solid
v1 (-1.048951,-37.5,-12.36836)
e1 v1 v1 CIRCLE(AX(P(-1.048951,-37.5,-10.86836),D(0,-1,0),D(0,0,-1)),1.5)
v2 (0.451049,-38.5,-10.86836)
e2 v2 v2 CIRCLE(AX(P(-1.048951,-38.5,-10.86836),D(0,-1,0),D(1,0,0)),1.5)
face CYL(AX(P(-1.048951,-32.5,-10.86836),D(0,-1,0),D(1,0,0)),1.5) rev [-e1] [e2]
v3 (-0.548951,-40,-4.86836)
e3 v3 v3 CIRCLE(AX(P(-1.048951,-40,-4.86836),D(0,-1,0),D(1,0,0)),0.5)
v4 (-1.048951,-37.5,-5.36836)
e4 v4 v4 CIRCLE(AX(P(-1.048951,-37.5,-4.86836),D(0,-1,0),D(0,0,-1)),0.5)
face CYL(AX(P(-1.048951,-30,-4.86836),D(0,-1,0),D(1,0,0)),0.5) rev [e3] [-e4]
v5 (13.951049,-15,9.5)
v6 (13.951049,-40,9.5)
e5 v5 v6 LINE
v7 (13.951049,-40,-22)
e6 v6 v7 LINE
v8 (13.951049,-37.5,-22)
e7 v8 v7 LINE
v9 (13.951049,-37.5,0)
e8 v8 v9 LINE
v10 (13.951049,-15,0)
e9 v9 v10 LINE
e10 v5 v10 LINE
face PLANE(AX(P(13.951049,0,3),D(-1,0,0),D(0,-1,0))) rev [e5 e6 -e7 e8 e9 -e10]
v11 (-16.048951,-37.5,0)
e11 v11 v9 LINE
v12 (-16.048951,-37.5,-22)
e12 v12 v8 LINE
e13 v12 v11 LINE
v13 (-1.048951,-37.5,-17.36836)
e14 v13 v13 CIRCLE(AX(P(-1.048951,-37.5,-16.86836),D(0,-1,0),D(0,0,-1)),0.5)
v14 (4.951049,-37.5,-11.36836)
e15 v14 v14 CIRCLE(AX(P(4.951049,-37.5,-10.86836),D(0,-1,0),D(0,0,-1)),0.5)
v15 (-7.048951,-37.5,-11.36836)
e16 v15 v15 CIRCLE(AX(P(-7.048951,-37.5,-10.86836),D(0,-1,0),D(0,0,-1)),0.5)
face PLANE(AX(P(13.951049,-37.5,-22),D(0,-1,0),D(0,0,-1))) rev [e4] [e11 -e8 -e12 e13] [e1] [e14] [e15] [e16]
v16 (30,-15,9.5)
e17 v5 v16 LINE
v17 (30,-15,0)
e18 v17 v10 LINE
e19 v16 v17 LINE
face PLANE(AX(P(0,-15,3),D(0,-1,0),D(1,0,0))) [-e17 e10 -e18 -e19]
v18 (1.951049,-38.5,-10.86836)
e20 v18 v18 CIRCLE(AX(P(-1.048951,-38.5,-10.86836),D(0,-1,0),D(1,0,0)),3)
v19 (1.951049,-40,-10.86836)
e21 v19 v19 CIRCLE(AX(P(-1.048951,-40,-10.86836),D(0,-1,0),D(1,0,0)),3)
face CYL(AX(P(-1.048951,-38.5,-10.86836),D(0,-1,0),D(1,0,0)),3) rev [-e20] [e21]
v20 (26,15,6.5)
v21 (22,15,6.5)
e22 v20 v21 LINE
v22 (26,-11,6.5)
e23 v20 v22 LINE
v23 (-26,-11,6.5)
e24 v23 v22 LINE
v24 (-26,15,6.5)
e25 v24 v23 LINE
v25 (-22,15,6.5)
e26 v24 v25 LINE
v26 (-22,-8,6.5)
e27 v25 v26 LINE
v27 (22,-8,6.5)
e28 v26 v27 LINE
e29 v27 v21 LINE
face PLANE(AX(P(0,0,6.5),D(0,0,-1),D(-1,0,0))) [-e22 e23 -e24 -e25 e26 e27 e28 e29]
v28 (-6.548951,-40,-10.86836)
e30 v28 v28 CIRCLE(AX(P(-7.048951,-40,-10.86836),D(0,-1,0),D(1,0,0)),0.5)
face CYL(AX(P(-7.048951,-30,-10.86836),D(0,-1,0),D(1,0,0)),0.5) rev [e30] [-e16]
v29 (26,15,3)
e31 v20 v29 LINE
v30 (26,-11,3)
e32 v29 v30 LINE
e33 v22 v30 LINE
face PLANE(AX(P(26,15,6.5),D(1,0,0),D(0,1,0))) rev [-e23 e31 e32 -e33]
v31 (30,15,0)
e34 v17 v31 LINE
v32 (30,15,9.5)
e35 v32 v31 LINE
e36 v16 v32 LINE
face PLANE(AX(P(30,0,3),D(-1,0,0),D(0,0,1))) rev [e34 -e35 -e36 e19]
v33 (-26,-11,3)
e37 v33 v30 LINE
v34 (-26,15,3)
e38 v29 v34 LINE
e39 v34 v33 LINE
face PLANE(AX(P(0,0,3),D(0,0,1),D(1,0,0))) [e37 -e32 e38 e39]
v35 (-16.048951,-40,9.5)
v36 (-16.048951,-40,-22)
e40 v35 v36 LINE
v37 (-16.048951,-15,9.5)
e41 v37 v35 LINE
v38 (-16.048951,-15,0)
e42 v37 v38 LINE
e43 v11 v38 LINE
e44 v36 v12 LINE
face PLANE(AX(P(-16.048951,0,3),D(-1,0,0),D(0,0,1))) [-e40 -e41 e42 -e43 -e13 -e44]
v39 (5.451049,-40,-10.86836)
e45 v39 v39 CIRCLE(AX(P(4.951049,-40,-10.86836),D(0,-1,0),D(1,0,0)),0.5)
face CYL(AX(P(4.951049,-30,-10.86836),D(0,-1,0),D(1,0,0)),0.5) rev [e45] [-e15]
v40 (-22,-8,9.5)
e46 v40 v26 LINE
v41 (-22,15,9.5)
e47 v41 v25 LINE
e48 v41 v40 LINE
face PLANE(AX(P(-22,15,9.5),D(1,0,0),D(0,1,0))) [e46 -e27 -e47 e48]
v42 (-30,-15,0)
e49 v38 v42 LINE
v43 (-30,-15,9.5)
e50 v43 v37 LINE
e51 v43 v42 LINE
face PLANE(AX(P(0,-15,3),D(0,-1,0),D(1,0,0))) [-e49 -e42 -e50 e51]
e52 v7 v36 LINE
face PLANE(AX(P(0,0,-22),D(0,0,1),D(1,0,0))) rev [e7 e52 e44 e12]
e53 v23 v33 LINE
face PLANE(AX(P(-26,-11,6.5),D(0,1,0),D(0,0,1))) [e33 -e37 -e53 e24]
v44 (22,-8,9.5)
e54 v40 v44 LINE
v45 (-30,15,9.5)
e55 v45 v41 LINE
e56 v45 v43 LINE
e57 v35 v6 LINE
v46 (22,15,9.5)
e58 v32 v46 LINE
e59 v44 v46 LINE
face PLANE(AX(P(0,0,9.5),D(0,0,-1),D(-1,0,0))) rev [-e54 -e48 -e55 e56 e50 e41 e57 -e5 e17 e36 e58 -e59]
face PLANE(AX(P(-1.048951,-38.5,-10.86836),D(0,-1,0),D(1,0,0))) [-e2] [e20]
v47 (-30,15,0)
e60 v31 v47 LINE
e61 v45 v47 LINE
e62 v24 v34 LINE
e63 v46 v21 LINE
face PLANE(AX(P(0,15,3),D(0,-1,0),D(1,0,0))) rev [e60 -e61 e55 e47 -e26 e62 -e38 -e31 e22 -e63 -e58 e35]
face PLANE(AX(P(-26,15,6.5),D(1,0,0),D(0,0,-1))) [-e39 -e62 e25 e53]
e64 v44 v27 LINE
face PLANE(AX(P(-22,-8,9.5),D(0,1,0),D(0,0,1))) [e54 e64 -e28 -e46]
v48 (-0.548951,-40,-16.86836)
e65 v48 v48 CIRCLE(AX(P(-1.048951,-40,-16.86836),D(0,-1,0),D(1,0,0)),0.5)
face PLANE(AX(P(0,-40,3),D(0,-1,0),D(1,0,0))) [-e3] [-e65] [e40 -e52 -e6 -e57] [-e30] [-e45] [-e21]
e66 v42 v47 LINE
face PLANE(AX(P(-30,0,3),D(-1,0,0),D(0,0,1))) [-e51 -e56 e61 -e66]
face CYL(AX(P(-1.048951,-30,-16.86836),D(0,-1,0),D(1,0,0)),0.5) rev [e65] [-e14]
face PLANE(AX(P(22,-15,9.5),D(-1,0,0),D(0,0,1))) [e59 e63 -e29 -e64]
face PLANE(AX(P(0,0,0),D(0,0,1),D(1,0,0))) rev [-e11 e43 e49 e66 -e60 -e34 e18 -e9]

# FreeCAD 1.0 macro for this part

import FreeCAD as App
import Part
import Sketcher
from FreeCAD import Vector
Q = App.Units.Quantity


def add_polygon(sketch, points):
    """Adds a closed chain of lines whose ends are joined by coincident constraints."""
    first, n = sketch.GeometryCount, len(points)
    for a, b in zip(points, points[1:] + points[:1]):
        sketch.addGeometry(Part.LineSegment(App.Vector(*a, 0), App.Vector(*b, 0)), False)
    for i in range(n):
        sketch.addConstraint(Sketcher.Constraint("Coincident", first + i, 2, first + (i + 1) % n, 1))

doc = App.newDocument("Part")
body = doc.addObject("PartDesign::Body", "Body")

sketch1 = doc.addObject("Sketcher::SketchObject", "Sketch")
body.addObject(sketch1)
sketch1.AttachmentSupport = (doc.XY_Plane, [""])
sketch1.MapMode = "FlatFace"
add_polygon(sketch1, [(-30, 15), (-30, -15), (-16, -15), (-16, -40), (14, -40), (14, -15), (30, -15), (30, 15)])
sketch1.addConstraint([
    Sketcher.Constraint("Vertical", 0),
    Sketcher.Constraint("Horizontal", 1),
    Sketcher.Constraint("Vertical", 2),
    Sketcher.Constraint("Horizontal", 3),
    Sketcher.Constraint("Vertical", 4),
    Sketcher.Constraint("Horizontal", 5),
    Sketcher.Constraint("Vertical", 6),
    Sketcher.Constraint("Horizontal", 7),
    Sketcher.Constraint("Symmetric", 0, 2, 6, 2, -1, 1),
    Sketcher.Constraint("Horizontal", 1, 2, 4, 2),
    Sketcher.Constraint("Equal", 3, 0),
    Sketcher.Constraint("DistanceX", 3, 1, 3, 2, Q("30 mm")),
    Sketcher.Constraint("DistanceX", 7, 2, 7, 1, Q("60 mm")),
    Sketcher.Constraint("DistanceY", 2, 2, 2, 1, Q("25 mm")),
    Sketcher.Constraint("DistanceX", 1, 1, 1, 2, Q("13.951049 mm")),
])
pad1 = doc.addObject("PartDesign::Pad", "Pad")
body.addObject(pad1)
pad1.Profile = sketch1
pad1.Length = 3

sketch2 = doc.addObject("Sketcher::SketchObject", "Sketch001")
body.addObject(sketch2)
sketch2.AttachmentSupport = (doc.XY_Plane, [""])
sketch2.MapMode = "FlatFace"
sketch2.AttachmentOffset = App.Placement(Vector(0, 0, 3), App.Rotation())
add_polygon(sketch2, [(-26, 15), (-30, 15), (-30, -15), (-16, -15), (-16, -40), (14, -40), (14, -15), (30, -15), (30, 15), (26, 15), (26, -11), (-26, -11)])
sketch2.addConstraint([
    Sketcher.Constraint("Horizontal", 0),
    Sketcher.Constraint("Vertical", 1),
    Sketcher.Constraint("Horizontal", 2),
    Sketcher.Constraint("Vertical", 3),
    Sketcher.Constraint("Horizontal", 4),
    Sketcher.Constraint("Vertical", 5),
    Sketcher.Constraint("Horizontal", 6),
    Sketcher.Constraint("Vertical", 7),
    Sketcher.Constraint("Horizontal", 8),
    Sketcher.Constraint("Vertical", 9),
    Sketcher.Constraint("Horizontal", 10),
    Sketcher.Constraint("Vertical", 11),
    Sketcher.Constraint("Symmetric", 0, 2, 6, 2, -1, 1),
    Sketcher.Constraint("Symmetric", 8, 2, 11, 2, -2),
    Sketcher.Constraint("Horizontal", 2, 2, 5, 2),
    Sketcher.Constraint("Equal", 4, 1),
    Sketcher.Constraint("DistanceX", 0, 2, 0, 1, Q("4 mm")),
    Sketcher.Constraint("DistanceX", 4, 1, 4, 2, Q("30 mm")),
    Sketcher.Constraint("DistanceX", 10, 2, 10, 1, Q("52 mm")),
    Sketcher.Constraint("DistanceY", 3, 2, 3, 1, Q("25 mm")),
    Sketcher.Constraint("DistanceY", 9, 2, 9, 1, Q("26 mm")),
    Sketcher.Constraint("DistanceX", 2, 1, 2, 2, Q("13.951049 mm")),
])
pad2 = doc.addObject("PartDesign::Pad", "Pad001")
body.addObject(pad2)
pad2.Profile = sketch2
pad2.Length = 3.5

sketch3 = doc.addObject("Sketcher::SketchObject", "Sketch002")
body.addObject(sketch3)
sketch3.AttachmentSupport = (doc.XY_Plane, [""])
sketch3.MapMode = "FlatFace"
sketch3.AttachmentOffset = App.Placement(Vector(0, 0, 6.5), App.Rotation())
add_polygon(sketch3, [(-22, 15), (-30, 15), (-30, -15), (-16, -15), (-16, -40), (14, -40), (14, -15), (30, -15), (30, 15), (22, 15), (22, -8), (-22, -8)])
sketch3.addConstraint([
    Sketcher.Constraint("Horizontal", 0),
    Sketcher.Constraint("Vertical", 1),
    Sketcher.Constraint("Horizontal", 2),
    Sketcher.Constraint("Vertical", 3),
    Sketcher.Constraint("Horizontal", 4),
    Sketcher.Constraint("Vertical", 5),
    Sketcher.Constraint("Horizontal", 6),
    Sketcher.Constraint("Vertical", 7),
    Sketcher.Constraint("Horizontal", 8),
    Sketcher.Constraint("Vertical", 9),
    Sketcher.Constraint("Horizontal", 10),
    Sketcher.Constraint("Vertical", 11),
    Sketcher.Constraint("Symmetric", 0, 2, 6, 2, -1, 1),
    Sketcher.Constraint("Symmetric", 8, 2, 11, 2, -2),
    Sketcher.Constraint("Horizontal", 2, 2, 5, 2),
    Sketcher.Constraint("Equal", 4, 1),
    Sketcher.Constraint("DistanceX", 0, 2, 0, 1, Q("8 mm")),
    Sketcher.Constraint("DistanceX", 4, 1, 4, 2, Q("30 mm")),
    Sketcher.Constraint("DistanceX", 10, 2, 10, 1, Q("44 mm")),
    Sketcher.Constraint("DistanceY", 3, 2, 3, 1, Q("25 mm")),
    Sketcher.Constraint("DistanceY", 9, 2, 9, 1, Q("23 mm")),
    Sketcher.Constraint("DistanceX", 2, 1, 2, 2, Q("13.951049 mm")),
])
pad3 = doc.addObject("PartDesign::Pad", "Pad002")
body.addObject(pad3)
pad3.Profile = sketch3
pad3.Length = 3

sketch4 = doc.addObject("Sketcher::SketchObject", "Sketch003")
body.addObject(sketch4)
sketch4.AttachmentSupport = (doc.XY_Plane, [""])
sketch4.MapMode = "FlatFace"
add_polygon(sketch4, [(14, -37.5), (14, -40), (-16, -40), (-16, -37.5)])
sketch4.addConstraint([
    Sketcher.Constraint("Vertical", 0),
    Sketcher.Constraint("Horizontal", 1),
    Sketcher.Constraint("Vertical", 2),
    Sketcher.Constraint("Horizontal", 3),
    Sketcher.Constraint("DistanceX", 1, 2, 1, 1, Q("30 mm")),
    Sketcher.Constraint("DistanceY", 0, 2, 0, 1, Q("2.5 mm")),
    Sketcher.Constraint("DistanceY", 0, 2, -1, 1, Q("40 mm")),
    Sketcher.Constraint("DistanceX", -1, 1, 0, 2, Q("13.951049 mm")),
])
pad4 = doc.addObject("PartDesign::Pad", "Pad003")
body.addObject(pad4)
pad4.Profile = sketch4
pad4.Length = 22
pad4.Reversed = True

sketch5 = doc.addObject("Sketcher::SketchObject", "Sketch004")
body.addObject(sketch5)
sketch5.AttachmentSupport = (doc.XZ_Plane, [""])
sketch5.MapMode = "FlatFace"
sketch5.AttachmentOffset = App.Placement(Vector(0, 0, 40), App.Rotation())
sketch5.addGeometry(Part.Circle(Vector(-1, -10.9, 0), Vector(0, 0, 1), 3), False)
sketch5.addConstraint([
    Sketcher.Constraint("Diameter", 0, Q("6 mm")),
    Sketcher.Constraint("DistanceX", 0, 3, -1, 1, Q("1.048951 mm")),
    Sketcher.Constraint("DistanceY", 0, 3, -1, 1, Q("10.86836 mm")),
])
pocket1 = doc.addObject("PartDesign::Pocket", "Pocket")
body.addObject(pocket1)
pocket1.Profile = sketch5
pocket1.Length = 1.5

sketch6 = doc.addObject("Sketcher::SketchObject", "Sketch005")
body.addObject(sketch6)
sketch6.AttachmentSupport = (doc.XZ_Plane, [""])
sketch6.MapMode = "FlatFace"
sketch6.AttachmentOffset = App.Placement(Vector(0, 0, 38.5), App.Rotation())
sketch6.addGeometry(Part.Circle(Vector(-1, -10.9, 0), Vector(0, 0, 1), 1.5), False)
sketch6.addConstraint([
    Sketcher.Constraint("Diameter", 0, Q("3 mm")),
    Sketcher.Constraint("DistanceX", 0, 3, -1, 1, Q("1.048951 mm")),
    Sketcher.Constraint("DistanceY", 0, 3, -1, 1, Q("10.86836 mm")),
])
pocket2 = doc.addObject("PartDesign::Pocket", "Pocket001")
body.addObject(pocket2)
pocket2.Profile = sketch6
pocket2.Length = 6

sketch7 = doc.addObject("Sketcher::SketchObject", "Sketch006")
body.addObject(sketch7)
sketch7.AttachmentSupport = (doc.XZ_Plane, [""])
sketch7.MapMode = "FlatFace"
sketch7.AttachmentOffset = App.Placement(Vector(0, 0, 40), App.Rotation())
sketch7.addGeometry([
    Part.Circle(Vector(-1, -4.9, 0), Vector(0, 0, 1), 0.5),
    Part.Circle(Vector(-1, -16.9, 0), Vector(0, 0, 1), 0.5),
    Part.Circle(Vector(5, -10.9, 0), Vector(0, 0, 1), 0.5),
    Part.Circle(Vector(-7, -10.9, 0), Vector(0, 0, 1), 0.5),
], False)
sketch7.addConstraint([
    Sketcher.Constraint("Equal", 0, 1),
    Sketcher.Constraint("Equal", 1, 2),
    Sketcher.Constraint("Equal", 2, 3),
    Sketcher.Constraint("Horizontal", 2, 3, 3, 3),
    Sketcher.Constraint("Vertical", 0, 3, 1, 3),
    Sketcher.Constraint("Diameter", 0, Q("1 mm")),
    Sketcher.Constraint("DistanceY", 1, 3, 0, 3, Q("12 mm")),
    Sketcher.Constraint("DistanceX", 0, 3, 2, 3, Q("6 mm")),
    Sketcher.Constraint("DistanceY", 2, 3, 0, 3, Q("6 mm")),
    Sketcher.Constraint("DistanceX", 3, 3, 0, 3, Q("6 mm")),
    Sketcher.Constraint("DistanceX", 0, 3, -1, 1, Q("1.048951 mm")),
    Sketcher.Constraint("DistanceY", 0, 3, -1, 1, Q("4.86836 mm")),
])
pocket3 = doc.addObject("PartDesign::Pocket", "Pocket002")
body.addObject(pocket3)
pocket3.Profile = sketch7
pocket3.Length = 10

doc.recompute()
